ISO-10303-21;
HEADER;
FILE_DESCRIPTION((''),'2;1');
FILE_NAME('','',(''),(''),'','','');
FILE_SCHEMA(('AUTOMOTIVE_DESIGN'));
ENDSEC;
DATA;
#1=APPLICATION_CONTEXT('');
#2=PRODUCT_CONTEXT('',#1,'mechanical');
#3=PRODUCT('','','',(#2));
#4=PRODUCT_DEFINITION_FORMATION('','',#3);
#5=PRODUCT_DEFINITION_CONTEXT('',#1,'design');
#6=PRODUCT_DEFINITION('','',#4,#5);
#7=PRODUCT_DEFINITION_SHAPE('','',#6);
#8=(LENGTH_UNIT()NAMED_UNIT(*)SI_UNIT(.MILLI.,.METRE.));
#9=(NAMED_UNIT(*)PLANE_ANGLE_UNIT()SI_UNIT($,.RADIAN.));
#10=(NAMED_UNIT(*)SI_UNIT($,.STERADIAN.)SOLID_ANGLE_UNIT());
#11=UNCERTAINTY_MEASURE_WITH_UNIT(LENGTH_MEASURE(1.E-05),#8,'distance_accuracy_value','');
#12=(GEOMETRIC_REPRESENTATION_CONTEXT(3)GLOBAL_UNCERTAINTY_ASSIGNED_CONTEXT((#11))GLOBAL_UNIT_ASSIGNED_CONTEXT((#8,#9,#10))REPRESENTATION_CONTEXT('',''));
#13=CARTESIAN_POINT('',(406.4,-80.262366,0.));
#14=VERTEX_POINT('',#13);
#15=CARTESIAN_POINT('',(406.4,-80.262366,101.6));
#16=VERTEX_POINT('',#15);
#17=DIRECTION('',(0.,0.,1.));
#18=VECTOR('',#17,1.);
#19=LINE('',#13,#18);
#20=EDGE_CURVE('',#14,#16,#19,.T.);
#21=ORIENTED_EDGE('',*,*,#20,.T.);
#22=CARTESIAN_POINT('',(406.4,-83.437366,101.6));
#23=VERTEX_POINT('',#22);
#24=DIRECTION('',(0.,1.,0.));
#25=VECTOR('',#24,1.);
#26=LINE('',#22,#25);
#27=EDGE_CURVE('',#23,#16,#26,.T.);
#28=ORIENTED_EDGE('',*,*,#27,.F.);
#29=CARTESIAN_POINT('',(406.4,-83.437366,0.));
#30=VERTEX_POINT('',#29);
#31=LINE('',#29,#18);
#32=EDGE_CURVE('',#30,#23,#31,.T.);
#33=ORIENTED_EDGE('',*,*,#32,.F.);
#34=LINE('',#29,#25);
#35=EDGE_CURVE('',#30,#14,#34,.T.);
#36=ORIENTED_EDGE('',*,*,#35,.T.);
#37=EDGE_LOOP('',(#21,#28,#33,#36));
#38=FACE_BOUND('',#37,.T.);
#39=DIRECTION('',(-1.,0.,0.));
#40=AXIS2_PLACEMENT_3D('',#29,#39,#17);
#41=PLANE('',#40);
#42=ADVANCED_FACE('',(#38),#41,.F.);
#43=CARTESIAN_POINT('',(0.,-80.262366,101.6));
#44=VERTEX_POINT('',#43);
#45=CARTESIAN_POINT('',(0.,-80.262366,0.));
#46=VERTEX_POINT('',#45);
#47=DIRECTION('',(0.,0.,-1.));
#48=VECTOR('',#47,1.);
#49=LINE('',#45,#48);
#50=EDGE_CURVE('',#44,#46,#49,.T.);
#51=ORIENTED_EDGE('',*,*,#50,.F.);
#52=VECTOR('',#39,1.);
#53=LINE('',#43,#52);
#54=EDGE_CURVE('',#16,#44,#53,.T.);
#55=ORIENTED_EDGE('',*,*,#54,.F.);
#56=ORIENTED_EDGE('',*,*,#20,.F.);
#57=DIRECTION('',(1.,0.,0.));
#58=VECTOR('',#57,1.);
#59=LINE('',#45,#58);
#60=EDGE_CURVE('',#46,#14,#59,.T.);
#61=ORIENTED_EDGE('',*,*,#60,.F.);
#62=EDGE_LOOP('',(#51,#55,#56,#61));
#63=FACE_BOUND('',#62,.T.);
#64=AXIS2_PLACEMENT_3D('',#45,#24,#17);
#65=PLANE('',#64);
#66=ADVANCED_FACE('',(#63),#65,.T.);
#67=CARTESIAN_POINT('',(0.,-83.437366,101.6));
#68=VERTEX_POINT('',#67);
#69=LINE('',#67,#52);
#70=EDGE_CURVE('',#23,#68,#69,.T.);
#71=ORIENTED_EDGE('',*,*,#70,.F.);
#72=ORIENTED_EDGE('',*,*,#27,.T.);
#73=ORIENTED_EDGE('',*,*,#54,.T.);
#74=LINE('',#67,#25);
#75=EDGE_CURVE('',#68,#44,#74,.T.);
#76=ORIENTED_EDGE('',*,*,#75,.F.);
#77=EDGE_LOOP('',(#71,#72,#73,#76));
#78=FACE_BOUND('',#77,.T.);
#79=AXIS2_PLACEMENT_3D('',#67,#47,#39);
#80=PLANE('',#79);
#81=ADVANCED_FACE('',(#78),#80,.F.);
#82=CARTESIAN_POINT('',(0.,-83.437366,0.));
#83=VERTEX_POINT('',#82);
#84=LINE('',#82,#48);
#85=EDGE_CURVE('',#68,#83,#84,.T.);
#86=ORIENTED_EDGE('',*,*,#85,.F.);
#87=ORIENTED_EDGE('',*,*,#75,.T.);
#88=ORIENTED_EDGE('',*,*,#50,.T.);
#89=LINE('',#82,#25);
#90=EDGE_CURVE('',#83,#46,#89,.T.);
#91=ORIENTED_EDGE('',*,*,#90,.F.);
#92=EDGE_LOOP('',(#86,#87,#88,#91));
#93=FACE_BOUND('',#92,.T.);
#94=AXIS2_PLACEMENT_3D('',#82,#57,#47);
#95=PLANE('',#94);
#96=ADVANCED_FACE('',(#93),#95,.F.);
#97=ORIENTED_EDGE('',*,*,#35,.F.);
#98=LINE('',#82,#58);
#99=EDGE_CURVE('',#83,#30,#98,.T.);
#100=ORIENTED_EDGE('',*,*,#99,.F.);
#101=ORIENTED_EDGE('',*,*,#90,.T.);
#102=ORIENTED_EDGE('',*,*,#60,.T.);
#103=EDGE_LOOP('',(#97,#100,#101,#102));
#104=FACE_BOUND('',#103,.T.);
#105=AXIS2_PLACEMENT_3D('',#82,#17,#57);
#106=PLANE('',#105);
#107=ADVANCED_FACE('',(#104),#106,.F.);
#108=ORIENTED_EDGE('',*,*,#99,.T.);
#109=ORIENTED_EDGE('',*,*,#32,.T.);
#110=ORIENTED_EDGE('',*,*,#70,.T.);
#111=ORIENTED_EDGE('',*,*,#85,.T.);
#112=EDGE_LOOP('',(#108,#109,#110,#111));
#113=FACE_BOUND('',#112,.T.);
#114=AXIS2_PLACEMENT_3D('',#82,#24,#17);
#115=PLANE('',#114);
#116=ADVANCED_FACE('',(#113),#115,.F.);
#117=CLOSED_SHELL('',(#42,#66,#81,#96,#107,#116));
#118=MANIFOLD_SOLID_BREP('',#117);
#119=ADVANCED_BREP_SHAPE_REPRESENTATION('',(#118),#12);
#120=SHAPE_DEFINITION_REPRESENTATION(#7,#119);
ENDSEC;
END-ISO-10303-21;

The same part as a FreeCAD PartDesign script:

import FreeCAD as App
import Part
import Sketcher
Q = App.Units.Quantity

doc = App.newDocument("Part")
body = doc.addObject("PartDesign::Body", "Body")

sketch1 = body.newObject("Sketcher::SketchObject", "Sketch")
sketch1.AttachmentSupport = (doc.getObject("XZ_Plane"), [""])
sketch1.MapMode = "FlatFace"
sketch1.AttachmentOffset = App.Placement(App.Vector(0, 0, 80.262366), App.Rotation())
sketch1.addGeometry(Part.LineSegment(App.Vector(0, 101.6, 0), App.Vector(0, 0, 0)), False)
sketch1.addGeometry(Part.LineSegment(App.Vector(0, 0, 0), App.Vector(406.4, 0, 0)), False)
sketch1.addGeometry(Part.LineSegment(App.Vector(406.4, 0, 0), App.Vector(406.4, 101.6, 0)), False)
sketch1.addGeometry(Part.LineSegment(App.Vector(406.4, 101.6, 0), App.Vector(0, 101.6, 0)), False)
sketch1.addConstraint(Sketcher.Constraint("Coincident", 0, 2, 1, 1))
sketch1.addConstraint(Sketcher.Constraint("Coincident", 1, 2, 2, 1))
sketch1.addConstraint(Sketcher.Constraint("Coincident", 2, 2, 3, 1))
sketch1.addConstraint(Sketcher.Constraint("Coincident", 3, 2, 0, 1))
sketch1.addConstraint(Sketcher.Constraint("Vertical", 0))
sketch1.addConstraint(Sketcher.Constraint("Horizontal", 1))
sketch1.addConstraint(Sketcher.Constraint("Vertical", 2))
sketch1.addConstraint(Sketcher.Constraint("Horizontal", 3))
sketch1.addConstraint(Sketcher.Constraint("Coincident", 0, 2, -1, 1))
sketch1.addConstraint(Sketcher.Constraint("DistanceX", 1, 1, 1, 2, Q("16 in")))
sketch1.addConstraint(Sketcher.Constraint("DistanceY", 0, 2, 0, 1, Q("4 in")))
pad1 = body.newObject("PartDesign::Pad", "Pad")
pad1.Profile = sketch1
pad1.Length = Q("0.125 in")

doc.recompute()
